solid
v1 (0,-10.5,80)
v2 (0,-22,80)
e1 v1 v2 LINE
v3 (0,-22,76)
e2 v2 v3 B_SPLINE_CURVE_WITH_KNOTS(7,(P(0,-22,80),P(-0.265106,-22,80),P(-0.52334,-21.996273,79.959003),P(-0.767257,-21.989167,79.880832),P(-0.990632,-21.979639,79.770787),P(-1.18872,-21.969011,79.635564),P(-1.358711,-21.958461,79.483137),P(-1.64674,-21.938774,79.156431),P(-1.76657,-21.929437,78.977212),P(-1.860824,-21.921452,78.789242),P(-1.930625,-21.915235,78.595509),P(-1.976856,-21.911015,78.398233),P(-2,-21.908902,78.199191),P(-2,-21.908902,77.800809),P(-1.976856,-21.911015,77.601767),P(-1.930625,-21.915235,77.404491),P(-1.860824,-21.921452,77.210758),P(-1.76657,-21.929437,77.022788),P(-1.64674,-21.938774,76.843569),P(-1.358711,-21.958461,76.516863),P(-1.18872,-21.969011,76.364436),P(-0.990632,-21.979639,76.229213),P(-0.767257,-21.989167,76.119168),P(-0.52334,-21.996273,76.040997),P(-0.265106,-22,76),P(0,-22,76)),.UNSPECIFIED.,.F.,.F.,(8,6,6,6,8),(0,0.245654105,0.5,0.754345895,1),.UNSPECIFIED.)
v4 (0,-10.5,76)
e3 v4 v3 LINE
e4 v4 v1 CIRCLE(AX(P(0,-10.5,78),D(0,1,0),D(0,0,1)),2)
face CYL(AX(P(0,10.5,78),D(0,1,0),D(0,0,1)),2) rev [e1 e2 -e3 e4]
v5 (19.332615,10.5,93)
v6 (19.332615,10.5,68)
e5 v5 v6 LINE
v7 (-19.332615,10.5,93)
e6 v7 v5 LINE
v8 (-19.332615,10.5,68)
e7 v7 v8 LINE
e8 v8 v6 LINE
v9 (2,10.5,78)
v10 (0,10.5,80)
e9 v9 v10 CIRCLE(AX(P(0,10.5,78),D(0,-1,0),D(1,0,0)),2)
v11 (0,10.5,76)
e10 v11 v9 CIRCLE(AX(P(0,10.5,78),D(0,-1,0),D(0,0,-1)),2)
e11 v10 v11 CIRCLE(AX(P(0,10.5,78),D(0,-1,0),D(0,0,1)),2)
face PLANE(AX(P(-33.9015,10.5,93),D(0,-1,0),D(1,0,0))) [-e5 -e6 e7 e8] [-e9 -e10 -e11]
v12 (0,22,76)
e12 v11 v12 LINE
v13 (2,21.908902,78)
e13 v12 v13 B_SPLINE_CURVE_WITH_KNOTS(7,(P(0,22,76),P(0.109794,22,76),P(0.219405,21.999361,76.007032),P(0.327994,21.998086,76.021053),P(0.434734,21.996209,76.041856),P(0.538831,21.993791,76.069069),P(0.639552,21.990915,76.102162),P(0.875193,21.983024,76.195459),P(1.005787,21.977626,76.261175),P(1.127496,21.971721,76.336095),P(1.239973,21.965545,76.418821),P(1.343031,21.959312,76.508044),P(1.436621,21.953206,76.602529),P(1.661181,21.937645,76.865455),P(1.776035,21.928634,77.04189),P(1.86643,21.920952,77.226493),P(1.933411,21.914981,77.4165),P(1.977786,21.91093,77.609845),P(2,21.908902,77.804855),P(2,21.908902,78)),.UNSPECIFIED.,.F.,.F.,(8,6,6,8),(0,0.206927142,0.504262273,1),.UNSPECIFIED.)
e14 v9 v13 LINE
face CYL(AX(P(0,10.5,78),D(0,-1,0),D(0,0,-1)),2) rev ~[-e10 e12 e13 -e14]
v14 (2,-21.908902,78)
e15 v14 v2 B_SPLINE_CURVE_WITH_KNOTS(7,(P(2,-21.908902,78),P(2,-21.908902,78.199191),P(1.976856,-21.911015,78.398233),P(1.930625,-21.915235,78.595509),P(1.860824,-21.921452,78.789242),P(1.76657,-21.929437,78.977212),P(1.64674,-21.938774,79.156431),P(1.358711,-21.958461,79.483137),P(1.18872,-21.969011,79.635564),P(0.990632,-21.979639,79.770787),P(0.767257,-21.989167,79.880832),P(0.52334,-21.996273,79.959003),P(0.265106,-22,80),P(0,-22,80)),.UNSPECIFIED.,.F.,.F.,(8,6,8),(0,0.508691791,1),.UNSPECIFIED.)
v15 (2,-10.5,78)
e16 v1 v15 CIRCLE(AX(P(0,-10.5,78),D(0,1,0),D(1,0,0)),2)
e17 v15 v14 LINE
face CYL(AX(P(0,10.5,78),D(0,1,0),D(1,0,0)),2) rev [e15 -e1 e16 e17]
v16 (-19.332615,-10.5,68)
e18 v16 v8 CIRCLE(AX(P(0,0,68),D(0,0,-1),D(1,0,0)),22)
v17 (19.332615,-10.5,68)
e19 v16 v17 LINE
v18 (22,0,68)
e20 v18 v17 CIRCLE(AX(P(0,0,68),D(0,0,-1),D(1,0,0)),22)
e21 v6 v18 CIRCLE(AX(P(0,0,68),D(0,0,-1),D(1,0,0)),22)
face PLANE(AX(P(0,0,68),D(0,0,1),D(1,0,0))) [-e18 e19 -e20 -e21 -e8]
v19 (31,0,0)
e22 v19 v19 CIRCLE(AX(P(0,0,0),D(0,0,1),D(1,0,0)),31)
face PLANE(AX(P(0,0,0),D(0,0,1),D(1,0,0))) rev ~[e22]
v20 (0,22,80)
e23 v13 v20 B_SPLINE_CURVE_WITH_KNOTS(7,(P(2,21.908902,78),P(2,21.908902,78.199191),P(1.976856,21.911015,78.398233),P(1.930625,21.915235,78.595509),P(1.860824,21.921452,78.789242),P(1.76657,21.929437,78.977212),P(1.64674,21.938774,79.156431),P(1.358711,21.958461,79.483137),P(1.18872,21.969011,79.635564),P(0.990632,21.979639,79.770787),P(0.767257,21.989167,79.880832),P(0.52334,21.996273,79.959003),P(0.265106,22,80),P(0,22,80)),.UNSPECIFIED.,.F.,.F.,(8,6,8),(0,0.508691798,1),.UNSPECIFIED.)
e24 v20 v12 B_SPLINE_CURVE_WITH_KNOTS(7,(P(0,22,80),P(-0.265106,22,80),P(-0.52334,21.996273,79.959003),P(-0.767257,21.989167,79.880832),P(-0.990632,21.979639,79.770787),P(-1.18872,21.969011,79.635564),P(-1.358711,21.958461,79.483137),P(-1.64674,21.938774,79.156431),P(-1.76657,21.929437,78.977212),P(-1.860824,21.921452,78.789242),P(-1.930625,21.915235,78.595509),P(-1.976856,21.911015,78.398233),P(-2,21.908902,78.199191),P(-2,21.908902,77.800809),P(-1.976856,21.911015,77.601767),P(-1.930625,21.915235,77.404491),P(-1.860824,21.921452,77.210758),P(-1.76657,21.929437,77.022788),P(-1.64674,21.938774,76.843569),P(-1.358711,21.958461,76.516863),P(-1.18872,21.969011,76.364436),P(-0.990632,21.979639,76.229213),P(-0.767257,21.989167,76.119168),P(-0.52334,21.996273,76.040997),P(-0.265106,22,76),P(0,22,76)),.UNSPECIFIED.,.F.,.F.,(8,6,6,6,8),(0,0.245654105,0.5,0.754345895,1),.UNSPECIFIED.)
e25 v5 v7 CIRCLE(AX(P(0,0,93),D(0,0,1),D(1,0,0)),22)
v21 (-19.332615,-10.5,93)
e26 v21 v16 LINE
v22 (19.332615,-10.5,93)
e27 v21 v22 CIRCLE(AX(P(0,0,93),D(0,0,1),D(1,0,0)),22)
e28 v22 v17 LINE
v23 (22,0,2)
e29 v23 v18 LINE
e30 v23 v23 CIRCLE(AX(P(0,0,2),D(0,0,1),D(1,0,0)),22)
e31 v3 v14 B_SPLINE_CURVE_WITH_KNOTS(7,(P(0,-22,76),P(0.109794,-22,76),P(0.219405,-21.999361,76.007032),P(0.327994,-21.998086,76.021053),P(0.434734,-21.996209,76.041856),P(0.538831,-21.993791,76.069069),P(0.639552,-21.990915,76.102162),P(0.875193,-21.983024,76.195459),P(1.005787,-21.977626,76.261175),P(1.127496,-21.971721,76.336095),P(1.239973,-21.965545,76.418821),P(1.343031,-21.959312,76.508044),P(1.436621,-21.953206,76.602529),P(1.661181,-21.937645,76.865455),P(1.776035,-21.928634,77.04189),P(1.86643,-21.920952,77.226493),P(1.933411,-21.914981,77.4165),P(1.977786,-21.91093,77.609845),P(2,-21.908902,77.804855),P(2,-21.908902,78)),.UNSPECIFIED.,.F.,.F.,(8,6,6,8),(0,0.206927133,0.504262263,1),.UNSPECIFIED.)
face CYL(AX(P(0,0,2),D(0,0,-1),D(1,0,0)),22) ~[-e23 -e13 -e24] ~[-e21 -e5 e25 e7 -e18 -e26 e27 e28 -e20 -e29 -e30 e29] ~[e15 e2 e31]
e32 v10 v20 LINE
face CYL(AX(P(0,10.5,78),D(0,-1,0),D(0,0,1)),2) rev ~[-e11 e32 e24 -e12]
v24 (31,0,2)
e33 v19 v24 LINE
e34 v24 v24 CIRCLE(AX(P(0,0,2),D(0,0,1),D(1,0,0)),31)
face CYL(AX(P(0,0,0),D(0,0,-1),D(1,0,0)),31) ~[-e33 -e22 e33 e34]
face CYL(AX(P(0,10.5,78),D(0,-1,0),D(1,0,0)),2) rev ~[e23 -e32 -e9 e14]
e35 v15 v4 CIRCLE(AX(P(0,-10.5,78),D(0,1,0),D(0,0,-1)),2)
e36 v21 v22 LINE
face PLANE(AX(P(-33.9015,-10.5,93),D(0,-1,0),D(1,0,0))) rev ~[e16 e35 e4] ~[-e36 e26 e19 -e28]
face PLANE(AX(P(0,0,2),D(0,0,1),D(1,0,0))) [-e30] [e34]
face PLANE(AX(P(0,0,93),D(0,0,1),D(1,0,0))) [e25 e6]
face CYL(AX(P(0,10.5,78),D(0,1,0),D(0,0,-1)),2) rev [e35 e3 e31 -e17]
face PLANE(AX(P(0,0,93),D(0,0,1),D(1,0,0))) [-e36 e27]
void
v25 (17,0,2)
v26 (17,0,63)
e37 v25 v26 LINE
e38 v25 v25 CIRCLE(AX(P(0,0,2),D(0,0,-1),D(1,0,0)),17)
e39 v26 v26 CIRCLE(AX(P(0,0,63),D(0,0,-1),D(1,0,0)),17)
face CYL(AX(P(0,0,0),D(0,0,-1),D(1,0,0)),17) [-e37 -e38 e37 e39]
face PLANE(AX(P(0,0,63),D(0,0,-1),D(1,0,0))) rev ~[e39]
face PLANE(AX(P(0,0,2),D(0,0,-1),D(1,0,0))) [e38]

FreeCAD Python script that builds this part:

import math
import FreeCAD as App
import Part
import Sketcher
Q = App.Units.Quantity

doc = App.newDocument("Part")
body = doc.addObject("PartDesign::Body", "Body")

# Sketch on XY plane
sketch1 = doc.addObject("Sketcher::SketchObject", "Sketch")
body.addObject(sketch1)
sketch1.AttachmentSupport = (doc.XY_Plane, [""])
sketch1.MapMode = "FlatFace"
sketch1.addGeometry(Part.Circle(App.Vector(0, 0, 0), App.Vector(0, 0, 1), 31), False)
sketch1.addConstraint([
    Sketcher.Constraint("Coincident", 0, 3, -1, 1),
    Sketcher.Constraint("Diameter", 0, Q("62 mm")),
])
pad1 = doc.addObject("PartDesign::Pad", "Pad")
body.addObject(pad1)
pad1.Profile = sketch1
pad1.Length = 2

# Sketch on XY plane
sketch2 = doc.addObject("Sketcher::SketchObject", "Sketch001")
body.addObject(sketch2)
sketch2.AttachmentSupport = (doc.XY_Plane, [""])
sketch2.MapMode = "FlatFace"
sketch2.AttachmentOffset = App.Placement(App.Vector(0, 0, 2), App.Rotation())
sketch2.addGeometry(Part.Circle(App.Vector(0, 0, 0), App.Vector(0, 0, 1), 22), False)
sketch2.addConstraint([
    Sketcher.Constraint("Coincident", 0, 3, -1, 1),
    Sketcher.Constraint("Diameter", 0, Q("44 mm")),
])
pad2 = doc.addObject("PartDesign::Pad", "Pad001")
body.addObject(pad2)
pad2.Profile = sketch2
pad2.Length = 91

# Sketch on XY plane
sketch3 = doc.addObject("Sketcher::SketchObject", "Sketch002")
body.addObject(sketch3)
sketch3.AttachmentSupport = (doc.XY_Plane, [""])
sketch3.MapMode = "FlatFace"
sketch3.AttachmentOffset = App.Placement(App.Vector(0, 0, 93), App.Rotation())
sketch3.addGeometry([
    Part.LineSegment(App.Vector(-33.9015, 10.5, 0), App.Vector(-33.9015, -10.5, 0)),
    Part.LineSegment(App.Vector(-33.9015, -10.5, 0), App.Vector(33.9015, -10.5, 0)),
    Part.LineSegment(App.Vector(33.9015, -10.5, 0), App.Vector(33.9015, 10.5, 0)),
    Part.LineSegment(App.Vector(33.9015, 10.5, 0), App.Vector(-33.9015, 10.5, 0)),
], False)
sketch3.addConstraint([
    Sketcher.Constraint("Coincident", 0, 2, 1, 1),
    Sketcher.Constraint("Coincident", 1, 2, 2, 1),
    Sketcher.Constraint("Coincident", 2, 2, 3, 1),
    Sketcher.Constraint("Coincident", 3, 2, 0, 1),
    Sketcher.Constraint("Vertical", 0),
    Sketcher.Constraint("Horizontal", 1),
    Sketcher.Constraint("Vertical", 2),
    Sketcher.Constraint("Horizontal", 3),
    Sketcher.Constraint("Symmetric", 0, 2, 2, 2, -1, 1),
    Sketcher.Constraint("DistanceY", 0, 2, 0, 1, Q("21 mm")),
    Sketcher.Constraint("DistanceX", 1, 1, 1, 2, Q("67.803 mm")),
])
pocket1 = doc.addObject("PartDesign::Pocket", "Pocket")
body.addObject(pocket1)
pocket1.Profile = sketch3
pocket1.Length = 25

# Sketch on XZ plane
sketch4 = doc.addObject("Sketcher::SketchObject", "Sketch003")
body.addObject(sketch4)
sketch4.AttachmentSupport = (doc.XZ_Plane, [""])
sketch4.MapMode = "FlatFace"
sketch4.AttachmentOffset = App.Placement(App.Vector(0, 0, -10.5), App.Rotation())
sketch4.addGeometry([
    Part.ArcOfCircle(Part.Circle(App.Vector(0, 78, 0), App.Vector(0, 0, 1), 2), math.radians(90), math.radians(270)),
    Part.ArcOfCircle(Part.Circle(App.Vector(0, 78, 0), App.Vector(0, 0, 1), 2), math.radians(-90), math.radians(0)),
    Part.ArcOfCircle(Part.Circle(App.Vector(0, 78, 0), App.Vector(0, 0, 1), 2), math.radians(0), math.radians(90)),
], False)
sketch4.addConstraint([
    Sketcher.Constraint("Tangent", 0, 2, 1, 1),
    Sketcher.Constraint("Tangent", 1, 2, 2, 1),
    Sketcher.Constraint("Tangent", 2, 2, 0, 1),
    Sketcher.Constraint("PointOnObject", 0, 3, -2),
    Sketcher.Constraint("PointOnObject", 0, 2, -2),
    Sketcher.Constraint("PointOnObject", 2, 2, -2),
    Sketcher.Constraint("Horizontal", 2, 3, 1, 2),
    Sketcher.Constraint("Radius", 0, Q("2 mm")),
    Sketcher.Constraint("DistanceY", -1, 1, 0, 3, Q("78 mm")),
])
pocket2 = doc.addObject("PartDesign::Pocket", "Pocket001")
body.addObject(pocket2)
pocket2.Profile = sketch4
pocket2.Type = "ThroughAll"
pocket2.Midplane = True

# Sketch on XY plane
sketch5 = doc.addObject("Sketcher::SketchObject", "Sketch004")
body.addObject(sketch5)
sketch5.AttachmentSupport = (doc.XY_Plane, [""])
sketch5.MapMode = "FlatFace"
sketch5.addGeometry(Part.Circle(App.Vector(0, 0, 0), App.Vector(0, 0, 1), 17), False)
sketch5.addConstraint([
    Sketcher.Constraint("Coincident", 0, 3, -1, 1),
    Sketcher.Constraint("Diameter", 0, Q("34 mm")),
])
pocket3 = doc.addObject("PartDesign::Pocket", "Pocket002")
body.addObject(pocket3)
pocket3.Profile = sketch5
pocket3.Length = 63
pocket3.Reversed = True

# Sketch on XY plane
sketch6 = doc.addObject("Sketcher::SketchObject", "Sketch005")
body.addObject(sketch6)
sketch6.AttachmentSupport = (doc.XY_Plane, [""])
sketch6.MapMode = "FlatFace"
sketch6.addGeometry(Part.Circle(App.Vector(0, 0, 0), App.Vector(0, 0, 1), 31), False)
sketch6.addConstraint([
    Sketcher.Constraint("Coincident", 0, 3, -1, 1),
    Sketcher.Constraint("Diameter", 0, Q("62 mm")),
])
pad3 = doc.addObject("PartDesign::Pad", "Pad002")
body.addObject(pad3)
pad3.Profile = sketch6
pad3.Length = 2

doc.recompute()
